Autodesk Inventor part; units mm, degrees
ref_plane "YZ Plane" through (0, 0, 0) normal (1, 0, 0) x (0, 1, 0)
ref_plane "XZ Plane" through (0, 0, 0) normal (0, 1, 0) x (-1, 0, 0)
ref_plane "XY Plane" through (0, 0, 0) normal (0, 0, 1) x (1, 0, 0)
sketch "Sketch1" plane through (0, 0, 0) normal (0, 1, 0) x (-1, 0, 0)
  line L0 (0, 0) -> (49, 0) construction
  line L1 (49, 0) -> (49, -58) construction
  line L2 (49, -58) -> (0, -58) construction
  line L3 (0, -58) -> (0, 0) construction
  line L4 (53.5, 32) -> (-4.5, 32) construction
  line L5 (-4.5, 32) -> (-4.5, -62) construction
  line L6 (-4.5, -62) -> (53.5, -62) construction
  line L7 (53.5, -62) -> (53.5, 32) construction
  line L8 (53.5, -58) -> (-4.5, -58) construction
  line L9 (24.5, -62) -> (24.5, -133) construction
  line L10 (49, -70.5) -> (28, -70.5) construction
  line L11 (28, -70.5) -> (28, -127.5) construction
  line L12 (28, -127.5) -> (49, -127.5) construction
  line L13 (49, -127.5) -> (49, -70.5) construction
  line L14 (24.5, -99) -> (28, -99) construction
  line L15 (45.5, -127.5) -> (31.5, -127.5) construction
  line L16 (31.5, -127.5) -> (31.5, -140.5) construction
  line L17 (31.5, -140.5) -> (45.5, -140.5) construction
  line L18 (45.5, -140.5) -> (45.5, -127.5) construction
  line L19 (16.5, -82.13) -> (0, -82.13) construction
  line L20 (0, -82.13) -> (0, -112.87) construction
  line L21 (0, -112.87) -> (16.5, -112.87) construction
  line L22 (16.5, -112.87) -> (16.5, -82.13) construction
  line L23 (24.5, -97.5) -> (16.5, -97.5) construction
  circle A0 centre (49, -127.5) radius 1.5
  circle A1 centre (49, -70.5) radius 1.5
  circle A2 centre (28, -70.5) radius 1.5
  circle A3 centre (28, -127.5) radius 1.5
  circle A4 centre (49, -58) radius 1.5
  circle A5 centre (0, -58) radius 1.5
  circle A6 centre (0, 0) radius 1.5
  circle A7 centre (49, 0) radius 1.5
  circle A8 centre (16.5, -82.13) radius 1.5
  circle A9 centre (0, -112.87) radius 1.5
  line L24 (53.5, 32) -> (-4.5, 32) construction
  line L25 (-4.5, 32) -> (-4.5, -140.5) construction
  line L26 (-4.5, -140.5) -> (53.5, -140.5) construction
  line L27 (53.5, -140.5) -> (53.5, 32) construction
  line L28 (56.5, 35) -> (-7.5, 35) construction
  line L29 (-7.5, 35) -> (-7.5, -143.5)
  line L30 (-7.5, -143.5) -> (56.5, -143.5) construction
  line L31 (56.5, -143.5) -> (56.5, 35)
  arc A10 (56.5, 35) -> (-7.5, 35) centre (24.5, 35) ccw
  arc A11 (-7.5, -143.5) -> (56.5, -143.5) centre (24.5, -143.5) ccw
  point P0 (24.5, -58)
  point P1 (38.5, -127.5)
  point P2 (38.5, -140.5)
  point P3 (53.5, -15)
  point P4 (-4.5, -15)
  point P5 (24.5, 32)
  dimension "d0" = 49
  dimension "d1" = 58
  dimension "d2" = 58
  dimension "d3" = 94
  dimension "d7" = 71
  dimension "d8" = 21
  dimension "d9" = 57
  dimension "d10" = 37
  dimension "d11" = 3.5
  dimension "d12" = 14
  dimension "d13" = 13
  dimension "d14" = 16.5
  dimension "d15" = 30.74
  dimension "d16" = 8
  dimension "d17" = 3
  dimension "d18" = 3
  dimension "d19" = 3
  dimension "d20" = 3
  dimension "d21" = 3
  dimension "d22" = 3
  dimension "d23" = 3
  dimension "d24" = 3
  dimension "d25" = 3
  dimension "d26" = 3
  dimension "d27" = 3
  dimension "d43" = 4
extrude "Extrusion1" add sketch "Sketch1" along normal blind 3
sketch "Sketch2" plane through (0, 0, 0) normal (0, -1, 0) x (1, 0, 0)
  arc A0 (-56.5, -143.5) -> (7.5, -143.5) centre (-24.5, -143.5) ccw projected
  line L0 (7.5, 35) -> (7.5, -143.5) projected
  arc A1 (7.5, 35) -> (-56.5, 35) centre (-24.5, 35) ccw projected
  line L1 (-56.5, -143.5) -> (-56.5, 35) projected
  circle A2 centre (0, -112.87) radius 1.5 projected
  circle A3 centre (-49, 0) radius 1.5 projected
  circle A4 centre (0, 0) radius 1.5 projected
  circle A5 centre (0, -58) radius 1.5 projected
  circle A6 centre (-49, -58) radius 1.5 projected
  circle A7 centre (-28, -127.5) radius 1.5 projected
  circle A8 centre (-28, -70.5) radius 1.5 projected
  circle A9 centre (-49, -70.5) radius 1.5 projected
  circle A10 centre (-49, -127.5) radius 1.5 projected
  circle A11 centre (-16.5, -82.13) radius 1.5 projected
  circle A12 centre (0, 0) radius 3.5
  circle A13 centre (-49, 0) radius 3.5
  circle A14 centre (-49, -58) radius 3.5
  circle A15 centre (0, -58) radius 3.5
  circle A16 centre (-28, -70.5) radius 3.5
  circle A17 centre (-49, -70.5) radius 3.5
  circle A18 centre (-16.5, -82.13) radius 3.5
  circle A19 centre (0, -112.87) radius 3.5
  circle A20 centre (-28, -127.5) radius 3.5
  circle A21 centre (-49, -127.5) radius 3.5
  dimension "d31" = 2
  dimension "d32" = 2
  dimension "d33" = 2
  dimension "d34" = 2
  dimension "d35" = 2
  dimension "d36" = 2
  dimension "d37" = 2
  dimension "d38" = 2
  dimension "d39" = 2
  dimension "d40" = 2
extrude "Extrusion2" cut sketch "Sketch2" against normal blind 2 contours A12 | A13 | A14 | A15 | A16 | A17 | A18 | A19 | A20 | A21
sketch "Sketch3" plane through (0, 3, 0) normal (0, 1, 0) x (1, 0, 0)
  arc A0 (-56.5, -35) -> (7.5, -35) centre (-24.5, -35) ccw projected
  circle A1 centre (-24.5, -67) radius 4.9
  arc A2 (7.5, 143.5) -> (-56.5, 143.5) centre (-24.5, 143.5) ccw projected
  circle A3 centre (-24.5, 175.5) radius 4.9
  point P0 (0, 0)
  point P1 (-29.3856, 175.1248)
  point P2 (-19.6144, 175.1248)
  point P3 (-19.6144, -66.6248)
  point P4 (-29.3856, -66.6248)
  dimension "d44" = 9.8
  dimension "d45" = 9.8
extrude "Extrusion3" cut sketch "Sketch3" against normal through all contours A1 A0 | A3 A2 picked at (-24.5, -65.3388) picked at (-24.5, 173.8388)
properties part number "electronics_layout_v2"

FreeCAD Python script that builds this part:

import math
import FreeCAD as App
import Part
import Sketcher
from FreeCAD import Vector
Q = App.Units.Quantity

doc = App.newDocument("Part")
body = doc.addObject("PartDesign::Body", "Body")

sketch1 = body.newObject("Sketcher::SketchObject", "Sketch")
sketch1.AttachmentSupport = (doc.getObject("XZ_Plane"), [""])
sketch1.MapMode = "FlatFace"
sketch1.addGeometry(Part.ArcOfCircle(Part.Circle(Vector(-24.5, 35, 0), Vector(0, 0, 1), 32), math.radians(0), math.radians(180)), False)
sketch1.addGeometry(Part.LineSegment(Vector(7.5, 35, 0), Vector(7.5, -143.5, 0)), False)
sketch1.addGeometry(Part.ArcOfCircle(Part.Circle(Vector(-24.5, -143.5, 0), Vector(0, 0, 1), 32), math.radians(180), math.radians(360)), False)
sketch1.addGeometry(Part.LineSegment(Vector(-56.5, -143.5, 0), Vector(-56.5, 35, 0)), False)
sketch1.addGeometry(Part.Circle(Vector(0, -112.9, 0), Vector(0, 0, 1), 1.5), False)
sketch1.addGeometry(Part.Circle(Vector(0, -58, 0), Vector(0, 0, 1), 1.5), False)
sketch1.addGeometry(Part.Circle(Vector(-16.5, -82.1, 0), Vector(0, 0, 1), 1.5), False)
sketch1.addGeometry(Part.Circle(Vector(-28, -127.5, 0), Vector(0, 0, 1), 1.5), False)
sketch1.addGeometry(Part.Circle(Vector(-49, -127.5, 0), Vector(0, 0, 1), 1.5), False)
sketch1.addGeometry(Part.Circle(Vector(-28, -70.5, 0), Vector(0, 0, 1), 1.5), False)
sketch1.addGeometry(Part.Circle(Vector(-49, -70.5, 0), Vector(0, 0, 1), 1.5), False)
sketch1.addGeometry(Part.Circle(Vector(-49, -58, 0), Vector(0, 0, 1), 1.5), False)
sketch1.addGeometry(Part.Circle(Vector(0, 0, 0), Vector(0, 0, 1), 1.5), False)
sketch1.addGeometry(Part.Circle(Vector(-49, 0, 0), Vector(0, 0, 1), 1.5), False)
sketch1.addConstraint(Sketcher.Constraint("Tangent", 0, 1, 1, 1))
sketch1.addConstraint(Sketcher.Constraint("Tangent", 1, 2, 2, 2))
sketch1.addConstraint(Sketcher.Constraint("Tangent", 2, 1, 3, 1))
sketch1.addConstraint(Sketcher.Constraint("Tangent", 3, 2, 0, 2))
sketch1.addConstraint(Sketcher.Constraint("Vertical", 1))
sketch1.addConstraint(Sketcher.Constraint("Vertical", 3))
sketch1.addConstraint(Sketcher.Constraint("Coincident", 12, 3, -1, 1))
sketch1.addConstraint(Sketcher.Constraint("Equal", 4, 5))
sketch1.addConstraint(Sketcher.Constraint("Equal", 5, 6))
sketch1.addConstraint(Sketcher.Constraint("Equal", 6, 7))
sketch1.addConstraint(Sketcher.Constraint("Equal", 7, 8))
sketch1.addConstraint(Sketcher.Constraint("Equal", 8, 9))
sketch1.addConstraint(Sketcher.Constraint("Equal", 9, 10))
sketch1.addConstraint(Sketcher.Constraint("Equal", 10, 11))
sketch1.addConstraint(Sketcher.Constraint("Equal", 11, 12))
sketch1.addConstraint(Sketcher.Constraint("Equal", 12, 13))
sketch1.addConstraint(Sketcher.Constraint("PointOnObject", 4, 3, -2))
sketch1.addConstraint(Sketcher.Constraint("PointOnObject", 5, 3, -2))
sketch1.addConstraint(Sketcher.Constraint("PointOnObject", 13, 3, -1))
sketch1.addConstraint(Sketcher.Constraint("Horizontal", 7, 3, 8, 3))
sketch1.addConstraint(Sketcher.Constraint("Horizontal", 9, 3, 10, 3))
sketch1.addConstraint(Sketcher.Constraint("Horizontal", 5, 3, 11, 3))
sketch1.addConstraint(Sketcher.Constraint("Vertical", 7, 3, 9, 3))
sketch1.addConstraint(Sketcher.Constraint("Vertical", 8, 3, 10, 3))
sketch1.addConstraint(Sketcher.Constraint("Vertical", 10, 3, 11, 3))
sketch1.addConstraint(Sketcher.Constraint("Vertical", 11, 3, 13, 3))
sketch1.addConstraint(Sketcher.Constraint("Diameter", 4, Q("3 mm")))
sketch1.addConstraint(Sketcher.Constraint("DistanceY", 5, 3, -1, 1, Q("58 mm")))
sketch1.addConstraint(Sketcher.Constraint("DistanceX", 8, 3, -1, 1, Q("49 mm")))
sketch1.addConstraint(Sketcher.Constraint("Radius", 0, Q("32 mm")))
sketch1.addConstraint(Sketcher.Constraint("DistanceX", 2, 3, 6, 3, Q("8 mm")))
sketch1.addConstraint(Sketcher.Constraint("DistanceX", 8, 3, 7, 3, Q("21 mm")))
sketch1.addConstraint(Sketcher.Constraint("DistanceY", 7, 3, 9, 3, Q("57 mm")))
sketch1.addConstraint(Sketcher.Constraint("DistanceX", 6, 3, -1, 1, Q("16.5 mm")))
sketch1.addConstraint(Sketcher.Constraint("DistanceY", 4, 3, 6, 3, Q("30.74 mm")))
sketch1.addConstraint(Sketcher.Constraint("DistanceY", 1, 2, 1, 1, Q("178.5 mm")))
sketch1.addConstraint(Sketcher.Constraint("DistanceY", -1, 1, 0, 3, Q("35 mm")))
sketch1.addConstraint(Sketcher.Constraint("DistanceY", 2, 3, 7, 3, Q("16 mm")))
sketch1.addConstraint(Sketcher.Constraint("DistanceY", 4, 3, -1, 1, Q("112.87 mm")))
pad1 = body.newObject("PartDesign::Pad", "Pad")
pad1.Profile = sketch1
pad1.Length = 3
pad1.Reversed = True

sketch2 = body.newObject("Sketcher::SketchObject", "Sketch001")
sketch2.AttachmentSupport = (doc.getObject("XZ_Plane"), [""])
sketch2.MapMode = "FlatFace"
sketch2.addGeometry(Part.Circle(Vector(0, 0, 0), Vector(0, 0, 1), 3.5), False)
sketch2.addGeometry(Part.Circle(Vector(0, 0, 0), Vector(0, 0, 1), 1.5), False)
sketch2.addGeometry(Part.Circle(Vector(-49, 0, 0), Vector(0, 0, 1), 3.5), False)
sketch2.addGeometry(Part.Circle(Vector(-49, 0, 0), Vector(0, 0, 1), 1.5), False)
sketch2.addGeometry(Part.Circle(Vector(-49, -58, 0), Vector(0, 0, 1), 3.5), False)
sketch2.addGeometry(Part.Circle(Vector(-49, -58, 0), Vector(0, 0, 1), 1.5), False)
sketch2.addGeometry(Part.Circle(Vector(0, -58, 0), Vector(0, 0, 1), 3.5), False)
sketch2.addGeometry(Part.Circle(Vector(0, -58, 0), Vector(0, 0, 1), 1.5), False)
sketch2.addGeometry(Part.Circle(Vector(-28, -70.5, 0), Vector(0, 0, 1), 3.5), False)
sketch2.addGeometry(Part.Circle(Vector(-28, -70.5, 0), Vector(0, 0, 1), 1.5), False)
sketch2.addGeometry(Part.Circle(Vector(-49, -70.5, 0), Vector(0, 0, 1), 3.5), False)
sketch2.addGeometry(Part.Circle(Vector(-49, -70.5, 0), Vector(0, 0, 1), 1.5), False)
sketch2.addGeometry(Part.Circle(Vector(-16.5, -82.1, 0), Vector(0, 0, 1), 3.5), False)
sketch2.addGeometry(Part.Circle(Vector(-16.5, -82.1, 0), Vector(0, 0, 1), 1.5), False)
sketch2.addGeometry(Part.Circle(Vector(0, -112.9, 0), Vector(0, 0, 1), 3.5), False)
sketch2.addGeometry(Part.Circle(Vector(0, -112.9, 0), Vector(0, 0, 1), 1.5), False)
sketch2.addGeometry(Part.Circle(Vector(-28, -127.5, 0), Vector(0, 0, 1), 3.5), False)
sketch2.addGeometry(Part.Circle(Vector(-28, -127.5, 0), Vector(0, 0, 1), 1.5), False)
sketch2.addGeometry(Part.Circle(Vector(-49, -127.5, 0), Vector(0, 0, 1), 3.5), False)
sketch2.addGeometry(Part.Circle(Vector(-49, -127.5, 0), Vector(0, 0, 1), 1.5), False)
sketch2.addConstraint(Sketcher.Constraint("Coincident", 0, 3, -1, 1))
sketch2.addConstraint(Sketcher.Constraint("Coincident", 1, 3, -1, 1))
sketch2.addConstraint(Sketcher.Constraint("Coincident", 3, 3, 2, 3))
sketch2.addConstraint(Sketcher.Constraint("Coincident", 5, 3, 4, 3))
sketch2.addConstraint(Sketcher.Constraint("Coincident", 7, 3, 6, 3))
sketch2.addConstraint(Sketcher.Constraint("Coincident", 9, 3, 8, 3))
sketch2.addConstraint(Sketcher.Constraint("Coincident", 11, 3, 10, 3))
sketch2.addConstraint(Sketcher.Constraint("Coincident", 13, 3, 12, 3))
sketch2.addConstraint(Sketcher.Constraint("Coincident", 15, 3, 14, 3))
sketch2.addConstraint(Sketcher.Constraint("Coincident", 17, 3, 16, 3))
sketch2.addConstraint(Sketcher.Constraint("Coincident", 19, 3, 18, 3))
sketch2.addConstraint(Sketcher.Constraint("Equal", 0, 2))
sketch2.addConstraint(Sketcher.Constraint("Equal", 1, 3))
sketch2.addConstraint(Sketcher.Constraint("Equal", 2, 4))
sketch2.addConstraint(Sketcher.Constraint("Equal", 3, 5))
sketch2.addConstraint(Sketcher.Constraint("Equal", 4, 6))
sketch2.addConstraint(Sketcher.Constraint("Equal", 5, 7))
sketch2.addConstraint(Sketcher.Constraint("Equal", 6, 8))
sketch2.addConstraint(Sketcher.Constraint("Equal", 7, 9))
sketch2.addConstraint(Sketcher.Constraint("Equal", 8, 10))
sketch2.addConstraint(Sketcher.Constraint("Equal", 9, 11))
sketch2.addConstraint(Sketcher.Constraint("Equal", 10, 12))
sketch2.addConstraint(Sketcher.Constraint("Equal", 11, 13))
sketch2.addConstraint(Sketcher.Constraint("Equal", 12, 14))
sketch2.addConstraint(Sketcher.Constraint("Equal", 13, 15))
sketch2.addConstraint(Sketcher.Constraint("Equal", 14, 16))
sketch2.addConstraint(Sketcher.Constraint("Equal", 15, 17))
sketch2.addConstraint(Sketcher.Constraint("Equal", 16, 18))
sketch2.addConstraint(Sketcher.Constraint("Equal", 17, 19))
sketch2.addConstraint(Sketcher.Constraint("PointOnObject", 2, 3, -1))
sketch2.addConstraint(Sketcher.Constraint("PointOnObject", 6, 3, -2))
sketch2.addConstraint(Sketcher.Constraint("PointOnObject", 14, 3, -2))
sketch2.addConstraint(Sketcher.Constraint("Horizontal", 5, 3, 6, 3))
sketch2.addConstraint(Sketcher.Constraint("Horizontal", 9, 3, 10, 3))
sketch2.addConstraint(Sketcher.Constraint("Horizontal", 17, 3, 18, 3))
sketch2.addConstraint(Sketcher.Constraint("Vertical", 3, 3, 4, 3))
sketch2.addConstraint(Sketcher.Constraint("Vertical", 5, 3, 10, 3))
sketch2.addConstraint(Sketcher.Constraint("Vertical", 9, 3, 16, 3))
sketch2.addConstraint(Sketcher.Constraint("Vertical", 11, 3, 18, 3))
sketch2.addConstraint(Sketcher.Constraint("Diameter", 0, Q("7 mm")))
sketch2.addConstraint(Sketcher.Constraint("Diameter", 1, Q("3 mm")))
sketch2.addConstraint(Sketcher.Constraint("DistanceX", 2, 3, -1, 1, Q("49 mm")))
sketch2.addConstraint(Sketcher.Constraint("DistanceY", 4, 3, -1, 1, Q("58 mm")))
sketch2.addConstraint(Sketcher.Constraint("DistanceX", 8, 3, -1, 1, Q("28 mm")))
sketch2.addConstraint(Sketcher.Constraint("DistanceY", 16, 3, 8, 3, Q("57 mm")))
sketch2.addConstraint(Sketcher.Constraint("DistanceY", 8, 3, -1, 1, Q("70.5 mm")))
sketch2.addConstraint(Sketcher.Constraint("DistanceX", 12, 3, -1, 1, Q("16.5 mm")))
sketch2.addConstraint(Sketcher.Constraint("DistanceY", 12, 3, -1, 1, Q("82.13 mm")))
sketch2.addConstraint(Sketcher.Constraint("DistanceY", 14, 3, -1, 1, Q("112.87 mm")))
pocket1 = body.newObject("PartDesign::Pocket", "Pocket")
pocket1.Profile = sketch2
pocket1.Length = 2

sketch3 = body.newObject("Sketcher::SketchObject", "Sketch002")
sketch3.AttachmentSupport = (doc.getObject("XZ_Plane"), [""])
sketch3.MapMode = "FlatFace"
sketch3.AttachmentOffset = App.Placement(Vector(0, 0, -3), App.Rotation())
sketch3.addGeometry(Part.ArcOfCircle(Part.Circle(Vector(-24.5, 67, 0), Vector(0, 0, 1), 4.9), math.radians(-176), math.radians(-4)), False)
sketch3.addGeometry(Part.ArcOfCircle(Part.Circle(Vector(-24.5, 35, 0), Vector(0, 0, 1), 32), math.radians(81.22), math.radians(98.78)), False)
sketch3.addGeometry(Part.ArcOfCircle(Part.Circle(Vector(-24.5, -175.5, 0), Vector(0, 0, 1), 4.9), math.radians(4), math.radians(176)), False)
sketch3.addGeometry(Part.ArcOfCircle(Part.Circle(Vector(-24.5, -143.5, 0), Vector(0, 0, 1), 32), math.radians(-98.78), math.radians(-81.22)), False)
sketch3.addConstraint(Sketcher.Constraint("Coincident", 0, 1, 1, 2))
sketch3.addConstraint(Sketcher.Constraint("Coincident", 1, 1, 0, 2))
sketch3.addConstraint(Sketcher.Constraint("Coincident", 2, 1, 3, 2))
sketch3.addConstraint(Sketcher.Constraint("Coincident", 3, 1, 2, 2))
sketch3.addConstraint(Sketcher.Constraint("Equal", 0, 2))
sketch3.addConstraint(Sketcher.Constraint("Equal", 1, 3))
sketch3.addConstraint(Sketcher.Constraint("Horizontal", 0, 1, 1, 1))
sketch3.addConstraint(Sketcher.Constraint("Horizontal", 2, 1, 3, 1))
sketch3.addConstraint(Sketcher.Constraint("Vertical", 1, 3, 2, 3))
sketch3.addConstraint(Sketcher.Constraint("Vertical", 1, 1, 2, 1))
sketch3.addConstraint(Sketcher.Constraint("Radius", 0, Q("4.9 mm")))
sketch3.addConstraint(Sketcher.Constraint("Radius", 1, Q("32 mm")))
sketch3.addConstraint(Sketcher.Constraint("DistanceY", -1, 1, 0, 3, Q("67 mm")))
sketch3.addConstraint(Sketcher.Constraint("DistanceY", -1, 1, 1, 3, Q("35 mm")))
sketch3.addConstraint(Sketcher.Constraint("DistanceX", 0, 3, -1, 1, Q("24.5 mm")))
sketch3.addConstraint(Sketcher.Constraint("DistanceY", 2, 3, -1, 1, Q("175.5 mm")))
pocket2 = body.newObject("PartDesign::Pocket", "Pocket001")
pocket2.Profile = sketch3
pocket2.Type = "ThroughAll"
pocket2.Reversed = True

doc.recompute()
